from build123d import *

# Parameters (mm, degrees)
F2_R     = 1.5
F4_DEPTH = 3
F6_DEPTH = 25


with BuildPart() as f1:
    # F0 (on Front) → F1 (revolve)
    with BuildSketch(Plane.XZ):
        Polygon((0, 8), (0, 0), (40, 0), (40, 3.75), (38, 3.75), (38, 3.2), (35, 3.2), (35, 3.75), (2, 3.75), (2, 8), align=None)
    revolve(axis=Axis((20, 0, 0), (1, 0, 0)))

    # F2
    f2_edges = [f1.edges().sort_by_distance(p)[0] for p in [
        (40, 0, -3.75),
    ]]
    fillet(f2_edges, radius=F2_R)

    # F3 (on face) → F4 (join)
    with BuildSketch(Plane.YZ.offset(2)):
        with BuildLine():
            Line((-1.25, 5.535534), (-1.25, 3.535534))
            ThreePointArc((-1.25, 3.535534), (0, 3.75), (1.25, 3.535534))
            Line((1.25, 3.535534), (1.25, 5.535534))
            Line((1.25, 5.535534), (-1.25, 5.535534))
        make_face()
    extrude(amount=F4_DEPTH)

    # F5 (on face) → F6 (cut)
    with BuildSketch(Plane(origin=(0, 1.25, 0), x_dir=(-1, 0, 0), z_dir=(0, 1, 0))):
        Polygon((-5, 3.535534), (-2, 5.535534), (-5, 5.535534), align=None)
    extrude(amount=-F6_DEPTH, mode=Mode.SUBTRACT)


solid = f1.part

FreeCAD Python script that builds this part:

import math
import FreeCAD as App
import Part
import Sketcher
from FreeCAD import Vector
Q = App.Units.Quantity


def edges_at(feature, points):
    """Names of the edges that pass closest to the given points."""
    edges = feature.Shape.Edges
    near = lambda p: min(range(len(edges)), key=lambda i: edges[i].distToShape(Part.Vertex(*p))[0])
    return sorted({f"Edge{near(p) + 1}" for p in points})


def add_polygon(sketch, points):
    """Adds a closed chain of lines whose ends are joined by coincident constraints."""
    first, n = sketch.GeometryCount, len(points)
    for a, b in zip(points, points[1:] + points[:1]):
        sketch.addGeometry(Part.LineSegment(App.Vector(*a, 0), App.Vector(*b, 0)), False)
    for i in range(n):
        sketch.addConstraint(Sketcher.Constraint("Coincident", first + i, 2, first + (i + 1) % n, 1))

doc = App.newDocument("Part")
body = doc.addObject("PartDesign::Body", "Body")

# Sketch on XZ plane
sketch1 = body.newObject("Sketcher::SketchObject", "Sketch")
sketch1.AttachmentSupport = (doc.getObject("XZ_Plane"), [""])
sketch1.MapMode = "FlatFace"
add_polygon(sketch1, [(0, 8), (0, 0), (40, 0), (40, 3.8), (38, 3.8), (38, 3.2), (35, 3.2), (35, 3.8), (2, 3.8), (2, 8)])  # lines 0-9
sketch1.addConstraint(Sketcher.Constraint("Vertical", 0))
sketch1.addConstraint(Sketcher.Constraint("Horizontal", 1))
sketch1.addConstraint(Sketcher.Constraint("Vertical", 2))
sketch1.addConstraint(Sketcher.Constraint("Horizontal", 3))
sketch1.addConstraint(Sketcher.Constraint("Vertical", 4))
sketch1.addConstraint(Sketcher.Constraint("Horizontal", 5))
sketch1.addConstraint(Sketcher.Constraint("Vertical", 6))
sketch1.addConstraint(Sketcher.Constraint("Horizontal", 7))
sketch1.addConstraint(Sketcher.Constraint("Vertical", 8))
sketch1.addConstraint(Sketcher.Constraint("Horizontal", 9))
sketch1.addConstraint(Sketcher.Constraint("Coincident", 0, 2, -1, 1))
sketch1.addConstraint(Sketcher.Constraint("Horizontal", 3, 2, 6, 2))
sketch1.addConstraint(Sketcher.Constraint("Equal", 3, 9))
sketch1.addConstraint(Sketcher.Constraint("DistanceX", 1, 1, 1, 2, Q("40 mm")))
sketch1.addConstraint(Sketcher.Constraint("DistanceX", 3, 2, 3, 1, Q("2 mm")))
sketch1.addConstraint(Sketcher.Constraint("DistanceX", 5, 2, 5, 1, Q("3 mm")))
sketch1.addConstraint(Sketcher.Constraint("DistanceY", 0, 2, 0, 1, Q("8 mm")))
sketch1.addConstraint(Sketcher.Constraint("DistanceY", 2, 1, 2, 2, Q("3.75 mm")))
sketch1.addConstraint(Sketcher.Constraint("DistanceY", 4, 2, 4, 1, Q("0.55 mm")))
revolution = body.newObject("PartDesign::Revolution", "Revolution")
revolution.Profile = sketch1
revolution.ReferenceAxis = (sketch1, ["H_Axis"])
revolution.Angle = 360
doc.recompute()

fillet = body.newObject("PartDesign::Fillet", "Fillet")
fillet.Base = (revolution, edges_at(revolution, [(40, 0, -3.75)]))
fillet.Radius = 1.5

# Sketch on YZ plane
sketch2 = body.newObject("Sketcher::SketchObject", "Sketch001")
sketch2.AttachmentSupport = (doc.getObject("YZ_Plane"), [""])
sketch2.MapMode = "FlatFace"
sketch2.AttachmentOffset = App.Placement(Vector(0, 0, 2), App.Rotation())
sketch2.addGeometry(Part.LineSegment(Vector(-1.2, 5.5, 0), Vector(-1.2, 3.5, 0)), False)
sketch2.addGeometry(Part.ArcOfCircle(Part.Circle(Vector(0, 0, 0), Vector(0, 0, 1), 3.8), math.radians(71), math.radians(109)), False)
sketch2.addGeometry(Part.LineSegment(Vector(1.2, 3.5, 0), Vector(1.2, 5.5, 0)), False)
sketch2.addGeometry(Part.LineSegment(Vector(1.2, 5.5, 0), Vector(-1.2, 5.5, 0)), False)
sketch2.addConstraint(Sketcher.Constraint("Coincident", 0, 2, 1, 2))
sketch2.addConstraint(Sketcher.Constraint("Coincident", 1, 1, 2, 1))
sketch2.addConstraint(Sketcher.Constraint("Coincident", 2, 2, 3, 1))
sketch2.addConstraint(Sketcher.Constraint("Coincident", 3, 2, 0, 1))
sketch2.addConstraint(Sketcher.Constraint("Vertical", 0))
sketch2.addConstraint(Sketcher.Constraint("Vertical", 2))
sketch2.addConstraint(Sketcher.Constraint("Horizontal", 3))
sketch2.addConstraint(Sketcher.Constraint("Coincident", 1, 3, -1, 1))
sketch2.addConstraint(Sketcher.Constraint("Horizontal", 0, 2, 1, 1))
sketch2.addConstraint(Sketcher.Constraint("DistanceY", 0, 2, 0, 1, Q("2 mm")))
sketch2.addConstraint(Sketcher.Constraint("Radius", 1, Q("3.750002 mm")))
sketch2.addConstraint(Sketcher.Constraint("DistanceX", 3, 2, 3, 1, Q("2.5 mm")))
pad1 = body.newObject("PartDesign::Pad", "Pad")
pad1.Profile = sketch2
pad1.Length = 3

# Sketch on XZ plane
sketch3 = body.newObject("Sketcher::SketchObject", "Sketch002")
sketch3.AttachmentSupport = (doc.getObject("XZ_Plane"), [""])
sketch3.MapMode = "FlatFace"
sketch3.AttachmentOffset = App.Placement(Vector(0, 0, -1.25), App.Rotation())
add_polygon(sketch3, [(5, 3.5), (2, 5.5), (5, 5.5)])  # lines 0-2
sketch3.addConstraint(Sketcher.Constraint("Horizontal", 1))
sketch3.addConstraint(Sketcher.Constraint("Vertical", 2))
sketch3.addConstraint(Sketcher.Constraint("DistanceX", 1, 1, 1, 2, Q("3 mm")))
sketch3.addConstraint(Sketcher.Constraint("DistanceY", 2, 2, 2, 1, Q("2 mm")))
sketch3.addConstraint(Sketcher.Constraint("DistanceX", -1, 1, 0, 2, Q("2 mm")))
sketch3.addConstraint(Sketcher.Constraint("DistanceY", -1, 1, 0, 2, Q("5.535534 mm")))
pocket1 = body.newObject("PartDesign::Pocket", "Pocket")
pocket1.Profile = sketch3
pocket1.Length = 25
pocket1.Reversed = True

doc.recompute()
